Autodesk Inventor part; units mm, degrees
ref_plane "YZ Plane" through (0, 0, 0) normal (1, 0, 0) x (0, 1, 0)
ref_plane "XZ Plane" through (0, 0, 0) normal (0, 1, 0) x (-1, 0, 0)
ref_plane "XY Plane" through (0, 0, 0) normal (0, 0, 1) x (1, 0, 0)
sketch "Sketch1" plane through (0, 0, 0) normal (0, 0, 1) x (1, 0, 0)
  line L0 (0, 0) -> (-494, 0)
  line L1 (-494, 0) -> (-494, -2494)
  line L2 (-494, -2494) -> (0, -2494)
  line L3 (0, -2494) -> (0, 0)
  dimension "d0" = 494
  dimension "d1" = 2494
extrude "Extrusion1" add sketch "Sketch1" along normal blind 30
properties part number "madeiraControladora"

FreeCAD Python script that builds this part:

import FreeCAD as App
import Part
import Sketcher

V = App.Vector
Q = App.Units.Quantity


def add_polygon(sketch, points):
    """Adds a closed chain of lines whose ends are joined by coincident constraints."""
    first, n = sketch.GeometryCount, len(points)
    for a, b in zip(points, points[1:] + points[:1]):
        sketch.addGeometry(Part.LineSegment(App.Vector(*a, 0), App.Vector(*b, 0)), False)
    for i in range(n):
        sketch.addConstraint(Sketcher.Constraint("Coincident", first + i, 2, first + (i + 1) % n, 1))

doc = App.newDocument("Part")
body = doc.addObject("PartDesign::Body", "Body")

sketch1 = body.newObject("Sketcher::SketchObject", "Sketch")
sketch1.AttachmentSupport = (doc.getObject("XY_Plane"), [""])
sketch1.MapMode = "FlatFace"
add_polygon(sketch1, [(0, -2494), (0, 0), (-494, 0), (-494, -2494)])
sketch1.addConstraint([
    Sketcher.Constraint("Vertical", 0),
    Sketcher.Constraint("Horizontal", 1),
    Sketcher.Constraint("Vertical", 2),
    Sketcher.Constraint("Horizontal", 3),
    Sketcher.Constraint("Coincident", 0, 2, -1, 1),
    Sketcher.Constraint("DistanceX", 1, 2, 1, 1, Q("494 mm")),
    Sketcher.Constraint("DistanceY", 0, 1, 0, 2, Q("2494 mm")),
])
pad1 = body.newObject("PartDesign::Pad", "Pad")
pad1.Profile = sketch1
pad1.Length = 30

doc.recompute()
